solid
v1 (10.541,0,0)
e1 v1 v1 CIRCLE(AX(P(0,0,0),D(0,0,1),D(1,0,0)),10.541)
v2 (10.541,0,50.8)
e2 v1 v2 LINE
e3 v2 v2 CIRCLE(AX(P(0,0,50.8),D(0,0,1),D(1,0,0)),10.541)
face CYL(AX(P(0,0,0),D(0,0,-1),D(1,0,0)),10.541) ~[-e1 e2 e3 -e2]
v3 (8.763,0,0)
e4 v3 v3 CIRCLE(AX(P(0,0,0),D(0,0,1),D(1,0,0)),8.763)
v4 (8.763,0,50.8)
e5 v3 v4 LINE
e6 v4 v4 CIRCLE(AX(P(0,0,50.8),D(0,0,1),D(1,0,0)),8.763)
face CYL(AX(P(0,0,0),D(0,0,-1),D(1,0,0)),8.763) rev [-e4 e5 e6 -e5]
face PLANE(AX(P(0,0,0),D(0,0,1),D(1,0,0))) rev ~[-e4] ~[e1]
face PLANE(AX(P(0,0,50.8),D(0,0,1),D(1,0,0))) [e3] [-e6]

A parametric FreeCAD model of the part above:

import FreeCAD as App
import Part
import Sketcher

V = App.Vector
Q = App.Units.Quantity

doc = App.newDocument("Part")
body = doc.addObject("PartDesign::Body", "Body")

# Sketch on XY plane
sketch1 = body.newObject("Sketcher::SketchObject", "Sketch")
sketch1.AttachmentSupport = (doc.getObject("XY_Plane"), [""])
sketch1.MapMode = "FlatFace"
sketch1.addGeometry(Part.Circle(V(0, 0, 0), V(0, 0, 1), 10.541), False)
sketch1.addGeometry(Part.Circle(V(0, 0, 0), V(0, 0, 1), 8.763), False)
sketch1.addConstraint(Sketcher.Constraint("Coincident", 0, 3, -1, 1))
sketch1.addConstraint(Sketcher.Constraint("Coincident", 1, 3, -1, 1))
sketch1.addConstraint(Sketcher.Constraint("Diameter", 1, Q("0.69 in")))
sketch1.addConstraint(Sketcher.Constraint("Diameter", 0, Q("0.83 in")))
pad1 = body.newObject("PartDesign::Pad", "Pad")
pad1.Profile = sketch1
pad1.Length = Q("2 in")

doc.recompute()
